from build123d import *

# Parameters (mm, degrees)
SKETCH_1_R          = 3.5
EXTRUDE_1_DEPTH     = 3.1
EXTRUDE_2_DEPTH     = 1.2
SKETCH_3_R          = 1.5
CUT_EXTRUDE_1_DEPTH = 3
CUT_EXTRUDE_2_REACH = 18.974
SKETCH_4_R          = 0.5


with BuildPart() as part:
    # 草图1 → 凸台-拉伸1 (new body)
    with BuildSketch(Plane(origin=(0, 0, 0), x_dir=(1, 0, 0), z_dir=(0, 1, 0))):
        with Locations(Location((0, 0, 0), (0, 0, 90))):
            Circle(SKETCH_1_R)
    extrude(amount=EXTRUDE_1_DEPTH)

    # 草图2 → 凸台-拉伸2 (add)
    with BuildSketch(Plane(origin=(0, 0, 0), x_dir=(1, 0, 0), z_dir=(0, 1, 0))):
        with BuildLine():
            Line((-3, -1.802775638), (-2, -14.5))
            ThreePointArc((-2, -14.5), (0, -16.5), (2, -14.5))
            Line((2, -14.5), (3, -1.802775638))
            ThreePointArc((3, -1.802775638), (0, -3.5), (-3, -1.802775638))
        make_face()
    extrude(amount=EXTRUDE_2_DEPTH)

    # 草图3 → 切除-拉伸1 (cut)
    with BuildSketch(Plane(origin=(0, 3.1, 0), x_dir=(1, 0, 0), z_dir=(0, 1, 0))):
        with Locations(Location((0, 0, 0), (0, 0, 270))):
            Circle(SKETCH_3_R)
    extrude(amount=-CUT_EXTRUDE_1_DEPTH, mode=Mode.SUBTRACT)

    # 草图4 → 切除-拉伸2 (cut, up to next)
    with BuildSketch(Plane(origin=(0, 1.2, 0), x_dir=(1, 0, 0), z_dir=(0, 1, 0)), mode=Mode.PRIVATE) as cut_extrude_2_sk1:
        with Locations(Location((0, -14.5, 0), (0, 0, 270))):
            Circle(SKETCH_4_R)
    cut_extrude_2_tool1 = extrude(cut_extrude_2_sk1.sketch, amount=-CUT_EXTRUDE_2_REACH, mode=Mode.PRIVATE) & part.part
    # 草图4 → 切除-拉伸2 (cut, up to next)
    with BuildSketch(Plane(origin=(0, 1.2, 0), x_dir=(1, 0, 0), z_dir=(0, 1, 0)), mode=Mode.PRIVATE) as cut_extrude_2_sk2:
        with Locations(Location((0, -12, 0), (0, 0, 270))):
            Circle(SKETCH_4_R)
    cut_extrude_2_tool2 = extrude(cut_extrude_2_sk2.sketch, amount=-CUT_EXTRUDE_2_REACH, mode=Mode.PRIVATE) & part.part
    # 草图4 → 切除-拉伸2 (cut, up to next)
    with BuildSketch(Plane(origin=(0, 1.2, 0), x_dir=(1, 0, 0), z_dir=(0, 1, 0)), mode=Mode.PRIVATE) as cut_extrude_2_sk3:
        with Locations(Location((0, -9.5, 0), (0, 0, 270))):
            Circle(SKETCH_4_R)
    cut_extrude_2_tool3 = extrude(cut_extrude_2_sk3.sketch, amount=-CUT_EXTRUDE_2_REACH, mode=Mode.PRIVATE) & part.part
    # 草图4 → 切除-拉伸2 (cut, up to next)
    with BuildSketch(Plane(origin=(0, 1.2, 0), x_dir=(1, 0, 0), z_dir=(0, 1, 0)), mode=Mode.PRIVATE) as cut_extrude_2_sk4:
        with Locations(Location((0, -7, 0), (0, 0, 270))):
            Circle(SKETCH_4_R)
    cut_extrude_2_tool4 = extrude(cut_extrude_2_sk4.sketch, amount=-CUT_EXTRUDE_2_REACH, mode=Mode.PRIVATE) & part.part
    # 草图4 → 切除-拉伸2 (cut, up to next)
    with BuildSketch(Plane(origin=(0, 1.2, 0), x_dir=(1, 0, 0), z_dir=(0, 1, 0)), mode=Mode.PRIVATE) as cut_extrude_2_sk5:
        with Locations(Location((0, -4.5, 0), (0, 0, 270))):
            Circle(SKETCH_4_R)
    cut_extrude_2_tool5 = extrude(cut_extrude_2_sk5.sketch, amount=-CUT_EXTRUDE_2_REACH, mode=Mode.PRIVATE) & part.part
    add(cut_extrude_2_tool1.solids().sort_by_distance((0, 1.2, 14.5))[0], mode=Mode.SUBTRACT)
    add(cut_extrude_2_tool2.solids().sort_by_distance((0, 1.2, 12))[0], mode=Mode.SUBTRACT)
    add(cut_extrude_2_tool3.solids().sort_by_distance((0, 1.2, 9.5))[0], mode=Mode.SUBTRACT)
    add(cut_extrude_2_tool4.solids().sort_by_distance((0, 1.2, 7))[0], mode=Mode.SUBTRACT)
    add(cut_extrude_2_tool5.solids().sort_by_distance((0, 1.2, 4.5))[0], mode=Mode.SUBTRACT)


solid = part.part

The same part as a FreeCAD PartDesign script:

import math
import FreeCAD as App
import Part
import Sketcher

doc = App.newDocument("Part")
body = doc.addObject("PartDesign::Body", "Body")

# Sketch on XZ plane
sketch1 = doc.addObject("Sketcher::SketchObject", "Sketch")
body.addObject(sketch1)
sketch1.AttachmentSupport = (doc.XZ_Plane, [""])
sketch1.MapMode = "FlatFace"
sketch1.addGeometry(Part.Circle(App.Vector(0, 0, 0), App.Vector(0, 0, 1), 3.5), False)
sketch1.addConstraint(Sketcher.Constraint("Coincident", 0, 3, -1, 1))
sketch1.addConstraint(Sketcher.Constraint("Diameter", 0, 7.0))
pad1 = doc.addObject("PartDesign::Pad", "Pad")
body.addObject(pad1)
pad1.Profile = sketch1
pad1.Length = 3.1
pad1.Reversed = True

# Sketch on XZ plane
sketch2 = doc.addObject("Sketcher::SketchObject", "Sketch001")
body.addObject(sketch2)
sketch2.AttachmentSupport = (doc.XZ_Plane, [""])
sketch2.MapMode = "FlatFace"
sketch2.addGeometry(Part.LineSegment(App.Vector(-3, 1.8, 0), App.Vector(-2, 14.5, 0)), False)
sketch2.addGeometry(Part.ArcOfCircle(Part.Circle(App.Vector(0, 14.5, 0), App.Vector(0, 0, 1), 2), math.radians(0), math.radians(180)), False)
sketch2.addGeometry(Part.LineSegment(App.Vector(2, 14.5, 0), App.Vector(3, 1.8, 0)), False)
sketch2.addGeometry(Part.ArcOfCircle(Part.Circle(App.Vector(0, 0, 0), App.Vector(0, 0, 1), 3.5), math.radians(31), math.radians(149)), False)
sketch2.addConstraint(Sketcher.Constraint("Coincident", 0, 2, 1, 2))
sketch2.addConstraint(Sketcher.Constraint("Coincident", 1, 1, 2, 1))
sketch2.addConstraint(Sketcher.Constraint("Coincident", 2, 2, 3, 1))
sketch2.addConstraint(Sketcher.Constraint("Coincident", 3, 2, 0, 1))
sketch2.addConstraint(Sketcher.Constraint("Coincident", 3, 3, -1, 1))
sketch2.addConstraint(Sketcher.Constraint("Symmetric", 0, 2, 1, 1, -2))
sketch2.addConstraint(Sketcher.Constraint("Horizontal", 1, 3, 0, 2))
sketch2.addConstraint(Sketcher.Constraint("Horizontal", 2, 2, 3, 2))
sketch2.addConstraint(Sketcher.Constraint("Radius", 1, 2.0))
sketch2.addConstraint(Sketcher.Constraint("Radius", 3, 3.5))
sketch2.addConstraint(Sketcher.Constraint("DistanceX", -1, 1, 2, 2, 3.0))
sketch2.addConstraint(Sketcher.Constraint("DistanceY", -1, 1, 1, 3, 14.5))
pad2 = doc.addObject("PartDesign::Pad", "Pad001")
body.addObject(pad2)
pad2.Profile = sketch2
pad2.Length = 1.2
pad2.Reversed = True

# Sketch on XZ plane
sketch3 = doc.addObject("Sketcher::SketchObject", "Sketch002")
body.addObject(sketch3)
sketch3.AttachmentSupport = (doc.XZ_Plane, [""])
sketch3.MapMode = "FlatFace"
sketch3.AttachmentOffset = App.Placement(App.Vector(0, 0, -3.1), App.Rotation())
sketch3.addGeometry(Part.Circle(App.Vector(0, 0, 0), App.Vector(0, 0, 1), 1.5), False)
sketch3.addConstraint(Sketcher.Constraint("Coincident", 0, 3, -1, 1))
sketch3.addConstraint(Sketcher.Constraint("Diameter", 0, 3.0))
pocket1 = doc.addObject("PartDesign::Pocket", "Pocket")
body.addObject(pocket1)
pocket1.Profile = sketch3
pocket1.Length = 3
pocket1.Reversed = True

# Sketch on XZ plane
sketch4 = doc.addObject("Sketcher::SketchObject", "Sketch003")
body.addObject(sketch4)
sketch4.AttachmentSupport = (doc.XZ_Plane, [""])
sketch4.MapMode = "FlatFace"
sketch4.AttachmentOffset = App.Placement(App.Vector(0, 0, -1.2), App.Rotation())
sketch4.addGeometry(Part.Circle(App.Vector(0, 14.5, 0), App.Vector(0, 0, 1), 0.5), False)
sketch4.addConstraint(Sketcher.Constraint("PointOnObject", 0, 3, -2))
sketch4.addConstraint(Sketcher.Constraint("Diameter", 0, 1.0))
sketch4.addConstraint(Sketcher.Constraint("DistanceY", -1, 1, 0, 3, 14.5))
pocket2 = doc.addObject("PartDesign::Pocket", "Pocket001")
body.addObject(pocket2)
pocket2.Profile = sketch4
pocket2.Type = "UpToFirst"
pocket2.Reversed = True

# Sketch on XZ plane
sketch5 = doc.addObject("Sketcher::SketchObject", "Sketch004")
body.addObject(sketch5)
sketch5.AttachmentSupport = (doc.XZ_Plane, [""])
sketch5.MapMode = "FlatFace"
sketch5.AttachmentOffset = App.Placement(App.Vector(0, 0, -1.2), App.Rotation())
sketch5.addGeometry(Part.Circle(App.Vector(0, 12, 0), App.Vector(0, 0, 1), 0.5), False)
sketch5.addConstraint(Sketcher.Constraint("PointOnObject", 0, 3, -2))
sketch5.addConstraint(Sketcher.Constraint("Diameter", 0, 1.0))
sketch5.addConstraint(Sketcher.Constraint("DistanceY", -1, 1, 0, 3, 12.0))
pocket3 = doc.addObject("PartDesign::Pocket", "Pocket002")
body.addObject(pocket3)
pocket3.Profile = sketch5
pocket3.Type = "UpToFirst"
pocket3.Reversed = True

# Sketch on XZ plane
sketch6 = doc.addObject("Sketcher::SketchObject", "Sketch005")
body.addObject(sketch6)
sketch6.AttachmentSupport = (doc.XZ_Plane, [""])
sketch6.MapMode = "FlatFace"
sketch6.AttachmentOffset = App.Placement(App.Vector(0, 0, -1.2), App.Rotation())
sketch6.addGeometry(Part.Circle(App.Vector(0, 9.5, 0), App.Vector(0, 0, 1), 0.5), False)
sketch6.addConstraint(Sketcher.Constraint("PointOnObject", 0, 3, -2))
sketch6.addConstraint(Sketcher.Constraint("Diameter", 0, 1.0))
sketch6.addConstraint(Sketcher.Constraint("DistanceY", -1, 1, 0, 3, 9.5))
pocket4 = doc.addObject("PartDesign::Pocket", "Pocket003")
body.addObject(pocket4)
pocket4.Profile = sketch6
pocket4.Type = "UpToFirst"
pocket4.Reversed = True

# Sketch on XZ plane
sketch7 = doc.addObject("Sketcher::SketchObject", "Sketch006")
body.addObject(sketch7)
sketch7.AttachmentSupport = (doc.XZ_Plane, [""])
sketch7.MapMode = "FlatFace"
sketch7.AttachmentOffset = App.Placement(App.Vector(0, 0, -1.2), App.Rotation())
sketch7.addGeometry(Part.Circle(App.Vector(0, 7, 0), App.Vector(0, 0, 1), 0.5), False)
sketch7.addConstraint(Sketcher.Constraint("PointOnObject", 0, 3, -2))
sketch7.addConstraint(Sketcher.Constraint("Diameter", 0, 1.0))
sketch7.addConstraint(Sketcher.Constraint("DistanceY", -1, 1, 0, 3, 7.0))
pocket5 = doc.addObject("PartDesign::Pocket", "Pocket004")
body.addObject(pocket5)
pocket5.Profile = sketch7
pocket5.Type = "UpToFirst"
pocket5.Reversed = True

# Sketch on XZ plane
sketch8 = doc.addObject("Sketcher::SketchObject", "Sketch007")
body.addObject(sketch8)
sketch8.AttachmentSupport = (doc.XZ_Plane, [""])
sketch8.MapMode = "FlatFace"
sketch8.AttachmentOffset = App.Placement(App.Vector(0, 0, -1.2), App.Rotation())
sketch8.addGeometry(Part.Circle(App.Vector(0, 4.5, 0), App.Vector(0, 0, 1), 0.5), False)
sketch8.addConstraint(Sketcher.Constraint("PointOnObject", 0, 3, -2))
sketch8.addConstraint(Sketcher.Constraint("Diameter", 0, 1.0))
sketch8.addConstraint(Sketcher.Constraint("DistanceY", -1, 1, 0, 3, 4.5))
pocket6 = doc.addObject("PartDesign::Pocket", "Pocket005")
body.addObject(pocket6)
pocket6.Profile = sketch8
pocket6.Type = "UpToFirst"
pocket6.Reversed = True

doc.recompute()
